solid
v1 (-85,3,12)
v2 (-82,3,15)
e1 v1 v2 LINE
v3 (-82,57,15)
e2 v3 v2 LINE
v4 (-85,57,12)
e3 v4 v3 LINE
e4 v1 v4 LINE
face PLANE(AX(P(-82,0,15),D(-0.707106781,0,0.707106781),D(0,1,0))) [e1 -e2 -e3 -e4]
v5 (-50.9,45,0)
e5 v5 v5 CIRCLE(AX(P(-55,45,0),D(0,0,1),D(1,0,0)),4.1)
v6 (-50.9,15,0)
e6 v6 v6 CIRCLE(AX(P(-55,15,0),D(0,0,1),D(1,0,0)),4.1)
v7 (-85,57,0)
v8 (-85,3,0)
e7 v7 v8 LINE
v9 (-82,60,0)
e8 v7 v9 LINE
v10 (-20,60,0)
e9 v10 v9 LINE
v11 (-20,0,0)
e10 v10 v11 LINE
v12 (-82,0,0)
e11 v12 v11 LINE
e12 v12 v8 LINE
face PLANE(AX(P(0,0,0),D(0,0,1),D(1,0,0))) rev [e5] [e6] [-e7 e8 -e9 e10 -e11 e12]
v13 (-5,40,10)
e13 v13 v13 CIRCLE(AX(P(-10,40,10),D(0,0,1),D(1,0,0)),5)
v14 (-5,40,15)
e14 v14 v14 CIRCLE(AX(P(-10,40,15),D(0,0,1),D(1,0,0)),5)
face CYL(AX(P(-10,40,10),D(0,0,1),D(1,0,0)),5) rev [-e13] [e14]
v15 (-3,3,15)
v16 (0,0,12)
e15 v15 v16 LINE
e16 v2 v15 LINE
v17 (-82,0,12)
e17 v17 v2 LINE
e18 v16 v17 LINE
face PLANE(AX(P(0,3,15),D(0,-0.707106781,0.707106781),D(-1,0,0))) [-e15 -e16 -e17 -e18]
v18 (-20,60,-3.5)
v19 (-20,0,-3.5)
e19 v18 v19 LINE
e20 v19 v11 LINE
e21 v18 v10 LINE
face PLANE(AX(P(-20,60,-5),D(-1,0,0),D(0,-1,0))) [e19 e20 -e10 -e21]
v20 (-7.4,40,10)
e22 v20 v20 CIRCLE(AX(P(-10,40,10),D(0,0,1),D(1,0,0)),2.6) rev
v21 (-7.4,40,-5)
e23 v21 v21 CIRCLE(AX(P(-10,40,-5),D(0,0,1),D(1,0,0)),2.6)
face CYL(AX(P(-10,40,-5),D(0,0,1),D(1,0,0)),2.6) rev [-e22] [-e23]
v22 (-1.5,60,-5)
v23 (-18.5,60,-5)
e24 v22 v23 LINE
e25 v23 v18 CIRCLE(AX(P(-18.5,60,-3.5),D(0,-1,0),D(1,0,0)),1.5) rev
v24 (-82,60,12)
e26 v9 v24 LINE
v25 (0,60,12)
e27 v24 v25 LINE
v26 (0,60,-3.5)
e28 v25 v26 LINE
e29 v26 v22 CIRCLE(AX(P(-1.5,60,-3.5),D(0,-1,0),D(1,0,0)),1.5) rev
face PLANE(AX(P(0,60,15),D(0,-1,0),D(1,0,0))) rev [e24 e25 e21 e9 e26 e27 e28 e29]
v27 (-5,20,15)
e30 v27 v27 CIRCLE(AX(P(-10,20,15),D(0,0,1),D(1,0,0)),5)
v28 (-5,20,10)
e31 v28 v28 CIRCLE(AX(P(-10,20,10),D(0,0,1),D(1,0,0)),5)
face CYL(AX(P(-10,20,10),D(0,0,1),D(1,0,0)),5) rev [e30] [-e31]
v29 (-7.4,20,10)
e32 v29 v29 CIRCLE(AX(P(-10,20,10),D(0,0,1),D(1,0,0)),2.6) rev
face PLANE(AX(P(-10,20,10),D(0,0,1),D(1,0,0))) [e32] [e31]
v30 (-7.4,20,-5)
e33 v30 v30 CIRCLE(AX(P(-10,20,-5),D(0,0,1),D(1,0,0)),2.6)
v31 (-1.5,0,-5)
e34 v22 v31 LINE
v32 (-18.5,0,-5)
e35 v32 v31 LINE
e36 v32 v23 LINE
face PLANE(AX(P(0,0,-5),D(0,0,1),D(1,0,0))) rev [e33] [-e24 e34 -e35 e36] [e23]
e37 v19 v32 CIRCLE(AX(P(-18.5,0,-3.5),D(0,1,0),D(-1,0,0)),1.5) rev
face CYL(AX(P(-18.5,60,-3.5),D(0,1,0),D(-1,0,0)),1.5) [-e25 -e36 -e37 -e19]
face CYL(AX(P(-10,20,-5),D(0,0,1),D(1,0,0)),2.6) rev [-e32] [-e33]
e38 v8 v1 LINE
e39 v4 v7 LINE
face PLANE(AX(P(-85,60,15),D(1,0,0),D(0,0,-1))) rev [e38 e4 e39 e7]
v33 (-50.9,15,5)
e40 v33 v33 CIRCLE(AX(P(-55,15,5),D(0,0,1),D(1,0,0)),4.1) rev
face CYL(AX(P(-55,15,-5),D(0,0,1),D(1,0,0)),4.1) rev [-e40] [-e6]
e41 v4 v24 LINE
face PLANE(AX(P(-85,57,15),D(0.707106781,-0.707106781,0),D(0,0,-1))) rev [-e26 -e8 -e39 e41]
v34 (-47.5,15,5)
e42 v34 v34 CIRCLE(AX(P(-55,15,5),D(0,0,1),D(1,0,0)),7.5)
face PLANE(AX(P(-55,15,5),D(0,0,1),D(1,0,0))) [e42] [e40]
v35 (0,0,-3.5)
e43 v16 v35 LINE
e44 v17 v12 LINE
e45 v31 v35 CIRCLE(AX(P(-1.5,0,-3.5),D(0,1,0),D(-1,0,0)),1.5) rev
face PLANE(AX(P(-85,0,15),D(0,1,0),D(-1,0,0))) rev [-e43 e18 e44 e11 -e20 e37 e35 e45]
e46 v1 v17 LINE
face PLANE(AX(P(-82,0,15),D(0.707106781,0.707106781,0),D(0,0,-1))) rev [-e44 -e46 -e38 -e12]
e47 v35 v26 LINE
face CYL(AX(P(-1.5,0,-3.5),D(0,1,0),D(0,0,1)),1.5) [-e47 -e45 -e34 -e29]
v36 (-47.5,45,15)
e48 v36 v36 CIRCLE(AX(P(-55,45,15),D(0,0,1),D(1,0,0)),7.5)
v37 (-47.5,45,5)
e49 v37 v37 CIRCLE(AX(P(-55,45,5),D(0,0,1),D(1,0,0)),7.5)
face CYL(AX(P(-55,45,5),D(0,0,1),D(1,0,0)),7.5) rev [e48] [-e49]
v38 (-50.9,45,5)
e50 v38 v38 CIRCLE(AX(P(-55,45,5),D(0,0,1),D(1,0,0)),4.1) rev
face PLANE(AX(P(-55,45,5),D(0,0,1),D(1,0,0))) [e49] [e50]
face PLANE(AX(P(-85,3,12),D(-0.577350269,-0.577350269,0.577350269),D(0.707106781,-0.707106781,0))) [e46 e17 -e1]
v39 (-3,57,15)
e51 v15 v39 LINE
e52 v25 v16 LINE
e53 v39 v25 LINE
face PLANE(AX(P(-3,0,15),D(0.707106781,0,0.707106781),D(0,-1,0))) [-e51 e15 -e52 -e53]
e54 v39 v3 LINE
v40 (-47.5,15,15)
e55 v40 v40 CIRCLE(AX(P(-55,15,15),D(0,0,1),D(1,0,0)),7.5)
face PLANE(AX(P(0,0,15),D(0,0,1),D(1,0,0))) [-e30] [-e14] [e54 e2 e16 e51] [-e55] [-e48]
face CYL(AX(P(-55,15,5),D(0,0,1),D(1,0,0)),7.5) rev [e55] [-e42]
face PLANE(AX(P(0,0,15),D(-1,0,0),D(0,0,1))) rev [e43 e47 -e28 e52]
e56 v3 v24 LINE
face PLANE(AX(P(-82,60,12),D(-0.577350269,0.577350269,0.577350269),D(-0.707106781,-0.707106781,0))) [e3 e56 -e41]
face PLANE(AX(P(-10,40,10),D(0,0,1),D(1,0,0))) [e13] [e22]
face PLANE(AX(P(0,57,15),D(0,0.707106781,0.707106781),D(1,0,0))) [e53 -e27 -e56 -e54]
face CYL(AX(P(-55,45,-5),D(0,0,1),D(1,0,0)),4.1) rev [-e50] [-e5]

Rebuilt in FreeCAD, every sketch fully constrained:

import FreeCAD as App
import Part
import Sketcher
from FreeCAD import Vector
Q = App.Units.Quantity


def edges_at(feature, points):
    """Names of the edges that pass closest to the given points."""
    edges = feature.Shape.Edges
    near = lambda p: min(range(len(edges)), key=lambda i: edges[i].distToShape(Part.Vertex(*p))[0])
    return sorted({f"Edge{near(p) + 1}" for p in points})

doc = App.newDocument("Part")
body = doc.addObject("PartDesign::Body", "Body")

# Sketch on XY plane
sketch1 = body.newObject("Sketcher::SketchObject", "Sketch")
sketch1.AttachmentSupport = (doc.getObject("XY_Plane"), [""])
sketch1.MapMode = "FlatFace"
sketch1.addGeometry(Part.LineSegment(Vector(-85, 60, 0), Vector(-85, 0, 0)), False)
sketch1.addGeometry(Part.LineSegment(Vector(-85, 0, 0), Vector(0, 0, 0)), False)
sketch1.addGeometry(Part.LineSegment(Vector(0, 0, 0), Vector(0, 60, 0)), False)
sketch1.addGeometry(Part.LineSegment(Vector(0, 60, 0), Vector(-85, 60, 0)), False)
sketch1.addConstraint(Sketcher.Constraint("Coincident", 0, 2, 1, 1))
sketch1.addConstraint(Sketcher.Constraint("Coincident", 1, 2, 2, 1))
sketch1.addConstraint(Sketcher.Constraint("Coincident", 2, 2, 3, 1))
sketch1.addConstraint(Sketcher.Constraint("Coincident", 3, 2, 0, 1))
sketch1.addConstraint(Sketcher.Constraint("Vertical", 0))
sketch1.addConstraint(Sketcher.Constraint("Horizontal", 1))
sketch1.addConstraint(Sketcher.Constraint("Vertical", 2))
sketch1.addConstraint(Sketcher.Constraint("Horizontal", 3))
sketch1.addConstraint(Sketcher.Constraint("Coincident", 1, 2, -1, 1))
sketch1.addConstraint(Sketcher.Constraint("DistanceX", 1, 1, 1, 2, Q("85 mm")))
sketch1.addConstraint(Sketcher.Constraint("DistanceY", 0, 2, 0, 1, Q("60 mm")))
pad1 = body.newObject("PartDesign::Pad", "Pad")
pad1.Profile = sketch1
pad1.Length = 15

# Sketch on XY plane
sketch2 = body.newObject("Sketcher::SketchObject", "Sketch001")
sketch2.AttachmentSupport = (doc.getObject("XY_Plane"), [""])
sketch2.MapMode = "FlatFace"
sketch2.addGeometry(Part.LineSegment(Vector(-20, 60, 0), Vector(-20, 0, 0)), False)
sketch2.addGeometry(Part.LineSegment(Vector(-20, 0, 0), Vector(0, 0, 0)), False)
sketch2.addGeometry(Part.LineSegment(Vector(0, 0, 0), Vector(0, 60, 0)), False)
sketch2.addGeometry(Part.LineSegment(Vector(0, 60, 0), Vector(-20, 60, 0)), False)
sketch2.addConstraint(Sketcher.Constraint("Coincident", 0, 2, 1, 1))
sketch2.addConstraint(Sketcher.Constraint("Coincident", 1, 2, 2, 1))
sketch2.addConstraint(Sketcher.Constraint("Coincident", 2, 2, 3, 1))
sketch2.addConstraint(Sketcher.Constraint("Coincident", 3, 2, 0, 1))
sketch2.addConstraint(Sketcher.Constraint("Vertical", 0))
sketch2.addConstraint(Sketcher.Constraint("Horizontal", 1))
sketch2.addConstraint(Sketcher.Constraint("Vertical", 2))
sketch2.addConstraint(Sketcher.Constraint("Horizontal", 3))
sketch2.addConstraint(Sketcher.Constraint("Coincident", 1, 2, -1, 1))
sketch2.addConstraint(Sketcher.Constraint("DistanceX", 1, 1, 1, 2, Q("20 mm")))
sketch2.addConstraint(Sketcher.Constraint("DistanceY", 0, 2, 0, 1, Q("60 mm")))
pad2 = body.newObject("PartDesign::Pad", "Pad001")
pad2.Profile = sketch2
pad2.Length = 5
pad2.Reversed = True

# Sketch on XY plane
sketch3 = body.newObject("Sketcher::SketchObject", "Sketch002")
sketch3.AttachmentSupport = (doc.getObject("XY_Plane"), [""])
sketch3.MapMode = "FlatFace"
sketch3.addGeometry(Part.Circle(Vector(-10, 40, 0), Vector(0, 0, 1), 2.6), False)
sketch3.addGeometry(Part.Circle(Vector(-10, 20, 0), Vector(0, 0, 1), 2.6), False)
sketch3.addConstraint(Sketcher.Constraint("Equal", 0, 1))
sketch3.addConstraint(Sketcher.Constraint("Vertical", 0, 3, 1, 3))
sketch3.addConstraint(Sketcher.Constraint("Diameter", 0, Q("5.2 mm")))
sketch3.addConstraint(Sketcher.Constraint("DistanceX", 0, 3, -1, 1, Q("10 mm")))
sketch3.addConstraint(Sketcher.Constraint("DistanceY", -1, 1, 0, 3, Q("40 mm")))
sketch3.addConstraint(Sketcher.Constraint("DistanceY", -1, 1, 1, 3, Q("20 mm")))
pocket1 = body.newObject("PartDesign::Pocket", "Pocket")
pocket1.Profile = sketch3
pocket1.Type = "ThroughAll"
pocket1.Midplane = True

# Sketch on XY plane
sketch4 = body.newObject("Sketcher::SketchObject", "Sketch003")
sketch4.AttachmentSupport = (doc.getObject("XY_Plane"), [""])
sketch4.MapMode = "FlatFace"
sketch4.AttachmentOffset = App.Placement(Vector(0, 0, 15), App.Rotation())
sketch4.addGeometry(Part.Circle(Vector(-10, 40, 0), Vector(0, 0, 1), 5), False)
sketch4.addGeometry(Part.Circle(Vector(-10, 20, 0), Vector(0, 0, 1), 5), False)
sketch4.addConstraint(Sketcher.Constraint("Equal", 0, 1))
sketch4.addConstraint(Sketcher.Constraint("Vertical", 0, 3, 1, 3))
sketch4.addConstraint(Sketcher.Constraint("Diameter", 0, Q("10 mm")))
sketch4.addConstraint(Sketcher.Constraint("DistanceX", 0, 3, -1, 1, Q("10 mm")))
sketch4.addConstraint(Sketcher.Constraint("DistanceY", -1, 1, 0, 3, Q("40 mm")))
sketch4.addConstraint(Sketcher.Constraint("DistanceY", -1, 1, 1, 3, Q("20 mm")))
pocket2 = body.newObject("PartDesign::Pocket", "Pocket001")
pocket2.Profile = sketch4
pocket2.Length = 5
doc.recompute()

fillet = body.newObject("PartDesign::Fillet", "Fillet")
fillet.Base = (pocket2, edges_at(pocket2, [(-20, 30, -5), (0, 30, -5)]))
fillet.Radius = 1.5

# Sketch on XY plane
sketch5 = body.newObject("Sketcher::SketchObject", "Sketch004")
sketch5.AttachmentSupport = (doc.getObject("XY_Plane"), [""])
sketch5.MapMode = "FlatFace"
sketch5.addGeometry(Part.Circle(Vector(-55, 45, 0), Vector(0, 0, 1), 4.1), False)
sketch5.addGeometry(Part.Circle(Vector(-55, 15, 0), Vector(0, 0, 1), 4.1), False)
sketch5.addConstraint(Sketcher.Constraint("Equal", 0, 1))
sketch5.addConstraint(Sketcher.Constraint("Vertical", 0, 3, 1, 3))
sketch5.addConstraint(Sketcher.Constraint("Diameter", 0, Q("8.2 mm")))
sketch5.addConstraint(Sketcher.Constraint("DistanceX", 0, 3, -1, 1, Q("55 mm")))
sketch5.addConstraint(Sketcher.Constraint("DistanceY", -1, 1, 0, 3, Q("45 mm")))
sketch5.addConstraint(Sketcher.Constraint("DistanceY", -1, 1, 1, 3, Q("15 mm")))
pocket3 = body.newObject("PartDesign::Pocket", "Pocket002")
pocket3.Profile = sketch5
pocket3.Type = "ThroughAll"
pocket3.Midplane = True

# Sketch on XY plane
sketch6 = body.newObject("Sketcher::SketchObject", "Sketch005")
sketch6.AttachmentSupport = (doc.getObject("XY_Plane"), [""])
sketch6.MapMode = "FlatFace"
sketch6.AttachmentOffset = App.Placement(Vector(0, 0, 15), App.Rotation())
sketch6.addGeometry(Part.Circle(Vector(-55, 45, 0), Vector(0, 0, 1), 7.5), False)
sketch6.addGeometry(Part.Circle(Vector(-55, 15, 0), Vector(0, 0, 1), 7.5), False)
sketch6.addConstraint(Sketcher.Constraint("Equal", 0, 1))
sketch6.addConstraint(Sketcher.Constraint("Vertical", 0, 3, 1, 3))
sketch6.addConstraint(Sketcher.Constraint("Diameter", 0, Q("15 mm")))
sketch6.addConstraint(Sketcher.Constraint("DistanceX", 0, 3, -1, 1, Q("55 mm")))
sketch6.addConstraint(Sketcher.Constraint("DistanceY", -1, 1, 0, 3, Q("45 mm")))
sketch6.addConstraint(Sketcher.Constraint("DistanceY", -1, 1, 1, 3, Q("15 mm")))
pocket4 = body.newObject("PartDesign::Pocket", "Pocket003")
pocket4.Profile = sketch6
pocket4.Length = 10
doc.recompute()

chamfer = body.newObject("PartDesign::Chamfer", "Chamfer")
chamfer.Base = (pocket4, edges_at(pocket4, [
    (-42.5, 60, 15),
    (-85, 30, 15),
    (-42.5, 0, 15),
    (-85, 0, 7.5),
    (-85, 60, 7.5),
    (0, 30, 15),
]))
chamfer.Size = 3

doc.recompute()
